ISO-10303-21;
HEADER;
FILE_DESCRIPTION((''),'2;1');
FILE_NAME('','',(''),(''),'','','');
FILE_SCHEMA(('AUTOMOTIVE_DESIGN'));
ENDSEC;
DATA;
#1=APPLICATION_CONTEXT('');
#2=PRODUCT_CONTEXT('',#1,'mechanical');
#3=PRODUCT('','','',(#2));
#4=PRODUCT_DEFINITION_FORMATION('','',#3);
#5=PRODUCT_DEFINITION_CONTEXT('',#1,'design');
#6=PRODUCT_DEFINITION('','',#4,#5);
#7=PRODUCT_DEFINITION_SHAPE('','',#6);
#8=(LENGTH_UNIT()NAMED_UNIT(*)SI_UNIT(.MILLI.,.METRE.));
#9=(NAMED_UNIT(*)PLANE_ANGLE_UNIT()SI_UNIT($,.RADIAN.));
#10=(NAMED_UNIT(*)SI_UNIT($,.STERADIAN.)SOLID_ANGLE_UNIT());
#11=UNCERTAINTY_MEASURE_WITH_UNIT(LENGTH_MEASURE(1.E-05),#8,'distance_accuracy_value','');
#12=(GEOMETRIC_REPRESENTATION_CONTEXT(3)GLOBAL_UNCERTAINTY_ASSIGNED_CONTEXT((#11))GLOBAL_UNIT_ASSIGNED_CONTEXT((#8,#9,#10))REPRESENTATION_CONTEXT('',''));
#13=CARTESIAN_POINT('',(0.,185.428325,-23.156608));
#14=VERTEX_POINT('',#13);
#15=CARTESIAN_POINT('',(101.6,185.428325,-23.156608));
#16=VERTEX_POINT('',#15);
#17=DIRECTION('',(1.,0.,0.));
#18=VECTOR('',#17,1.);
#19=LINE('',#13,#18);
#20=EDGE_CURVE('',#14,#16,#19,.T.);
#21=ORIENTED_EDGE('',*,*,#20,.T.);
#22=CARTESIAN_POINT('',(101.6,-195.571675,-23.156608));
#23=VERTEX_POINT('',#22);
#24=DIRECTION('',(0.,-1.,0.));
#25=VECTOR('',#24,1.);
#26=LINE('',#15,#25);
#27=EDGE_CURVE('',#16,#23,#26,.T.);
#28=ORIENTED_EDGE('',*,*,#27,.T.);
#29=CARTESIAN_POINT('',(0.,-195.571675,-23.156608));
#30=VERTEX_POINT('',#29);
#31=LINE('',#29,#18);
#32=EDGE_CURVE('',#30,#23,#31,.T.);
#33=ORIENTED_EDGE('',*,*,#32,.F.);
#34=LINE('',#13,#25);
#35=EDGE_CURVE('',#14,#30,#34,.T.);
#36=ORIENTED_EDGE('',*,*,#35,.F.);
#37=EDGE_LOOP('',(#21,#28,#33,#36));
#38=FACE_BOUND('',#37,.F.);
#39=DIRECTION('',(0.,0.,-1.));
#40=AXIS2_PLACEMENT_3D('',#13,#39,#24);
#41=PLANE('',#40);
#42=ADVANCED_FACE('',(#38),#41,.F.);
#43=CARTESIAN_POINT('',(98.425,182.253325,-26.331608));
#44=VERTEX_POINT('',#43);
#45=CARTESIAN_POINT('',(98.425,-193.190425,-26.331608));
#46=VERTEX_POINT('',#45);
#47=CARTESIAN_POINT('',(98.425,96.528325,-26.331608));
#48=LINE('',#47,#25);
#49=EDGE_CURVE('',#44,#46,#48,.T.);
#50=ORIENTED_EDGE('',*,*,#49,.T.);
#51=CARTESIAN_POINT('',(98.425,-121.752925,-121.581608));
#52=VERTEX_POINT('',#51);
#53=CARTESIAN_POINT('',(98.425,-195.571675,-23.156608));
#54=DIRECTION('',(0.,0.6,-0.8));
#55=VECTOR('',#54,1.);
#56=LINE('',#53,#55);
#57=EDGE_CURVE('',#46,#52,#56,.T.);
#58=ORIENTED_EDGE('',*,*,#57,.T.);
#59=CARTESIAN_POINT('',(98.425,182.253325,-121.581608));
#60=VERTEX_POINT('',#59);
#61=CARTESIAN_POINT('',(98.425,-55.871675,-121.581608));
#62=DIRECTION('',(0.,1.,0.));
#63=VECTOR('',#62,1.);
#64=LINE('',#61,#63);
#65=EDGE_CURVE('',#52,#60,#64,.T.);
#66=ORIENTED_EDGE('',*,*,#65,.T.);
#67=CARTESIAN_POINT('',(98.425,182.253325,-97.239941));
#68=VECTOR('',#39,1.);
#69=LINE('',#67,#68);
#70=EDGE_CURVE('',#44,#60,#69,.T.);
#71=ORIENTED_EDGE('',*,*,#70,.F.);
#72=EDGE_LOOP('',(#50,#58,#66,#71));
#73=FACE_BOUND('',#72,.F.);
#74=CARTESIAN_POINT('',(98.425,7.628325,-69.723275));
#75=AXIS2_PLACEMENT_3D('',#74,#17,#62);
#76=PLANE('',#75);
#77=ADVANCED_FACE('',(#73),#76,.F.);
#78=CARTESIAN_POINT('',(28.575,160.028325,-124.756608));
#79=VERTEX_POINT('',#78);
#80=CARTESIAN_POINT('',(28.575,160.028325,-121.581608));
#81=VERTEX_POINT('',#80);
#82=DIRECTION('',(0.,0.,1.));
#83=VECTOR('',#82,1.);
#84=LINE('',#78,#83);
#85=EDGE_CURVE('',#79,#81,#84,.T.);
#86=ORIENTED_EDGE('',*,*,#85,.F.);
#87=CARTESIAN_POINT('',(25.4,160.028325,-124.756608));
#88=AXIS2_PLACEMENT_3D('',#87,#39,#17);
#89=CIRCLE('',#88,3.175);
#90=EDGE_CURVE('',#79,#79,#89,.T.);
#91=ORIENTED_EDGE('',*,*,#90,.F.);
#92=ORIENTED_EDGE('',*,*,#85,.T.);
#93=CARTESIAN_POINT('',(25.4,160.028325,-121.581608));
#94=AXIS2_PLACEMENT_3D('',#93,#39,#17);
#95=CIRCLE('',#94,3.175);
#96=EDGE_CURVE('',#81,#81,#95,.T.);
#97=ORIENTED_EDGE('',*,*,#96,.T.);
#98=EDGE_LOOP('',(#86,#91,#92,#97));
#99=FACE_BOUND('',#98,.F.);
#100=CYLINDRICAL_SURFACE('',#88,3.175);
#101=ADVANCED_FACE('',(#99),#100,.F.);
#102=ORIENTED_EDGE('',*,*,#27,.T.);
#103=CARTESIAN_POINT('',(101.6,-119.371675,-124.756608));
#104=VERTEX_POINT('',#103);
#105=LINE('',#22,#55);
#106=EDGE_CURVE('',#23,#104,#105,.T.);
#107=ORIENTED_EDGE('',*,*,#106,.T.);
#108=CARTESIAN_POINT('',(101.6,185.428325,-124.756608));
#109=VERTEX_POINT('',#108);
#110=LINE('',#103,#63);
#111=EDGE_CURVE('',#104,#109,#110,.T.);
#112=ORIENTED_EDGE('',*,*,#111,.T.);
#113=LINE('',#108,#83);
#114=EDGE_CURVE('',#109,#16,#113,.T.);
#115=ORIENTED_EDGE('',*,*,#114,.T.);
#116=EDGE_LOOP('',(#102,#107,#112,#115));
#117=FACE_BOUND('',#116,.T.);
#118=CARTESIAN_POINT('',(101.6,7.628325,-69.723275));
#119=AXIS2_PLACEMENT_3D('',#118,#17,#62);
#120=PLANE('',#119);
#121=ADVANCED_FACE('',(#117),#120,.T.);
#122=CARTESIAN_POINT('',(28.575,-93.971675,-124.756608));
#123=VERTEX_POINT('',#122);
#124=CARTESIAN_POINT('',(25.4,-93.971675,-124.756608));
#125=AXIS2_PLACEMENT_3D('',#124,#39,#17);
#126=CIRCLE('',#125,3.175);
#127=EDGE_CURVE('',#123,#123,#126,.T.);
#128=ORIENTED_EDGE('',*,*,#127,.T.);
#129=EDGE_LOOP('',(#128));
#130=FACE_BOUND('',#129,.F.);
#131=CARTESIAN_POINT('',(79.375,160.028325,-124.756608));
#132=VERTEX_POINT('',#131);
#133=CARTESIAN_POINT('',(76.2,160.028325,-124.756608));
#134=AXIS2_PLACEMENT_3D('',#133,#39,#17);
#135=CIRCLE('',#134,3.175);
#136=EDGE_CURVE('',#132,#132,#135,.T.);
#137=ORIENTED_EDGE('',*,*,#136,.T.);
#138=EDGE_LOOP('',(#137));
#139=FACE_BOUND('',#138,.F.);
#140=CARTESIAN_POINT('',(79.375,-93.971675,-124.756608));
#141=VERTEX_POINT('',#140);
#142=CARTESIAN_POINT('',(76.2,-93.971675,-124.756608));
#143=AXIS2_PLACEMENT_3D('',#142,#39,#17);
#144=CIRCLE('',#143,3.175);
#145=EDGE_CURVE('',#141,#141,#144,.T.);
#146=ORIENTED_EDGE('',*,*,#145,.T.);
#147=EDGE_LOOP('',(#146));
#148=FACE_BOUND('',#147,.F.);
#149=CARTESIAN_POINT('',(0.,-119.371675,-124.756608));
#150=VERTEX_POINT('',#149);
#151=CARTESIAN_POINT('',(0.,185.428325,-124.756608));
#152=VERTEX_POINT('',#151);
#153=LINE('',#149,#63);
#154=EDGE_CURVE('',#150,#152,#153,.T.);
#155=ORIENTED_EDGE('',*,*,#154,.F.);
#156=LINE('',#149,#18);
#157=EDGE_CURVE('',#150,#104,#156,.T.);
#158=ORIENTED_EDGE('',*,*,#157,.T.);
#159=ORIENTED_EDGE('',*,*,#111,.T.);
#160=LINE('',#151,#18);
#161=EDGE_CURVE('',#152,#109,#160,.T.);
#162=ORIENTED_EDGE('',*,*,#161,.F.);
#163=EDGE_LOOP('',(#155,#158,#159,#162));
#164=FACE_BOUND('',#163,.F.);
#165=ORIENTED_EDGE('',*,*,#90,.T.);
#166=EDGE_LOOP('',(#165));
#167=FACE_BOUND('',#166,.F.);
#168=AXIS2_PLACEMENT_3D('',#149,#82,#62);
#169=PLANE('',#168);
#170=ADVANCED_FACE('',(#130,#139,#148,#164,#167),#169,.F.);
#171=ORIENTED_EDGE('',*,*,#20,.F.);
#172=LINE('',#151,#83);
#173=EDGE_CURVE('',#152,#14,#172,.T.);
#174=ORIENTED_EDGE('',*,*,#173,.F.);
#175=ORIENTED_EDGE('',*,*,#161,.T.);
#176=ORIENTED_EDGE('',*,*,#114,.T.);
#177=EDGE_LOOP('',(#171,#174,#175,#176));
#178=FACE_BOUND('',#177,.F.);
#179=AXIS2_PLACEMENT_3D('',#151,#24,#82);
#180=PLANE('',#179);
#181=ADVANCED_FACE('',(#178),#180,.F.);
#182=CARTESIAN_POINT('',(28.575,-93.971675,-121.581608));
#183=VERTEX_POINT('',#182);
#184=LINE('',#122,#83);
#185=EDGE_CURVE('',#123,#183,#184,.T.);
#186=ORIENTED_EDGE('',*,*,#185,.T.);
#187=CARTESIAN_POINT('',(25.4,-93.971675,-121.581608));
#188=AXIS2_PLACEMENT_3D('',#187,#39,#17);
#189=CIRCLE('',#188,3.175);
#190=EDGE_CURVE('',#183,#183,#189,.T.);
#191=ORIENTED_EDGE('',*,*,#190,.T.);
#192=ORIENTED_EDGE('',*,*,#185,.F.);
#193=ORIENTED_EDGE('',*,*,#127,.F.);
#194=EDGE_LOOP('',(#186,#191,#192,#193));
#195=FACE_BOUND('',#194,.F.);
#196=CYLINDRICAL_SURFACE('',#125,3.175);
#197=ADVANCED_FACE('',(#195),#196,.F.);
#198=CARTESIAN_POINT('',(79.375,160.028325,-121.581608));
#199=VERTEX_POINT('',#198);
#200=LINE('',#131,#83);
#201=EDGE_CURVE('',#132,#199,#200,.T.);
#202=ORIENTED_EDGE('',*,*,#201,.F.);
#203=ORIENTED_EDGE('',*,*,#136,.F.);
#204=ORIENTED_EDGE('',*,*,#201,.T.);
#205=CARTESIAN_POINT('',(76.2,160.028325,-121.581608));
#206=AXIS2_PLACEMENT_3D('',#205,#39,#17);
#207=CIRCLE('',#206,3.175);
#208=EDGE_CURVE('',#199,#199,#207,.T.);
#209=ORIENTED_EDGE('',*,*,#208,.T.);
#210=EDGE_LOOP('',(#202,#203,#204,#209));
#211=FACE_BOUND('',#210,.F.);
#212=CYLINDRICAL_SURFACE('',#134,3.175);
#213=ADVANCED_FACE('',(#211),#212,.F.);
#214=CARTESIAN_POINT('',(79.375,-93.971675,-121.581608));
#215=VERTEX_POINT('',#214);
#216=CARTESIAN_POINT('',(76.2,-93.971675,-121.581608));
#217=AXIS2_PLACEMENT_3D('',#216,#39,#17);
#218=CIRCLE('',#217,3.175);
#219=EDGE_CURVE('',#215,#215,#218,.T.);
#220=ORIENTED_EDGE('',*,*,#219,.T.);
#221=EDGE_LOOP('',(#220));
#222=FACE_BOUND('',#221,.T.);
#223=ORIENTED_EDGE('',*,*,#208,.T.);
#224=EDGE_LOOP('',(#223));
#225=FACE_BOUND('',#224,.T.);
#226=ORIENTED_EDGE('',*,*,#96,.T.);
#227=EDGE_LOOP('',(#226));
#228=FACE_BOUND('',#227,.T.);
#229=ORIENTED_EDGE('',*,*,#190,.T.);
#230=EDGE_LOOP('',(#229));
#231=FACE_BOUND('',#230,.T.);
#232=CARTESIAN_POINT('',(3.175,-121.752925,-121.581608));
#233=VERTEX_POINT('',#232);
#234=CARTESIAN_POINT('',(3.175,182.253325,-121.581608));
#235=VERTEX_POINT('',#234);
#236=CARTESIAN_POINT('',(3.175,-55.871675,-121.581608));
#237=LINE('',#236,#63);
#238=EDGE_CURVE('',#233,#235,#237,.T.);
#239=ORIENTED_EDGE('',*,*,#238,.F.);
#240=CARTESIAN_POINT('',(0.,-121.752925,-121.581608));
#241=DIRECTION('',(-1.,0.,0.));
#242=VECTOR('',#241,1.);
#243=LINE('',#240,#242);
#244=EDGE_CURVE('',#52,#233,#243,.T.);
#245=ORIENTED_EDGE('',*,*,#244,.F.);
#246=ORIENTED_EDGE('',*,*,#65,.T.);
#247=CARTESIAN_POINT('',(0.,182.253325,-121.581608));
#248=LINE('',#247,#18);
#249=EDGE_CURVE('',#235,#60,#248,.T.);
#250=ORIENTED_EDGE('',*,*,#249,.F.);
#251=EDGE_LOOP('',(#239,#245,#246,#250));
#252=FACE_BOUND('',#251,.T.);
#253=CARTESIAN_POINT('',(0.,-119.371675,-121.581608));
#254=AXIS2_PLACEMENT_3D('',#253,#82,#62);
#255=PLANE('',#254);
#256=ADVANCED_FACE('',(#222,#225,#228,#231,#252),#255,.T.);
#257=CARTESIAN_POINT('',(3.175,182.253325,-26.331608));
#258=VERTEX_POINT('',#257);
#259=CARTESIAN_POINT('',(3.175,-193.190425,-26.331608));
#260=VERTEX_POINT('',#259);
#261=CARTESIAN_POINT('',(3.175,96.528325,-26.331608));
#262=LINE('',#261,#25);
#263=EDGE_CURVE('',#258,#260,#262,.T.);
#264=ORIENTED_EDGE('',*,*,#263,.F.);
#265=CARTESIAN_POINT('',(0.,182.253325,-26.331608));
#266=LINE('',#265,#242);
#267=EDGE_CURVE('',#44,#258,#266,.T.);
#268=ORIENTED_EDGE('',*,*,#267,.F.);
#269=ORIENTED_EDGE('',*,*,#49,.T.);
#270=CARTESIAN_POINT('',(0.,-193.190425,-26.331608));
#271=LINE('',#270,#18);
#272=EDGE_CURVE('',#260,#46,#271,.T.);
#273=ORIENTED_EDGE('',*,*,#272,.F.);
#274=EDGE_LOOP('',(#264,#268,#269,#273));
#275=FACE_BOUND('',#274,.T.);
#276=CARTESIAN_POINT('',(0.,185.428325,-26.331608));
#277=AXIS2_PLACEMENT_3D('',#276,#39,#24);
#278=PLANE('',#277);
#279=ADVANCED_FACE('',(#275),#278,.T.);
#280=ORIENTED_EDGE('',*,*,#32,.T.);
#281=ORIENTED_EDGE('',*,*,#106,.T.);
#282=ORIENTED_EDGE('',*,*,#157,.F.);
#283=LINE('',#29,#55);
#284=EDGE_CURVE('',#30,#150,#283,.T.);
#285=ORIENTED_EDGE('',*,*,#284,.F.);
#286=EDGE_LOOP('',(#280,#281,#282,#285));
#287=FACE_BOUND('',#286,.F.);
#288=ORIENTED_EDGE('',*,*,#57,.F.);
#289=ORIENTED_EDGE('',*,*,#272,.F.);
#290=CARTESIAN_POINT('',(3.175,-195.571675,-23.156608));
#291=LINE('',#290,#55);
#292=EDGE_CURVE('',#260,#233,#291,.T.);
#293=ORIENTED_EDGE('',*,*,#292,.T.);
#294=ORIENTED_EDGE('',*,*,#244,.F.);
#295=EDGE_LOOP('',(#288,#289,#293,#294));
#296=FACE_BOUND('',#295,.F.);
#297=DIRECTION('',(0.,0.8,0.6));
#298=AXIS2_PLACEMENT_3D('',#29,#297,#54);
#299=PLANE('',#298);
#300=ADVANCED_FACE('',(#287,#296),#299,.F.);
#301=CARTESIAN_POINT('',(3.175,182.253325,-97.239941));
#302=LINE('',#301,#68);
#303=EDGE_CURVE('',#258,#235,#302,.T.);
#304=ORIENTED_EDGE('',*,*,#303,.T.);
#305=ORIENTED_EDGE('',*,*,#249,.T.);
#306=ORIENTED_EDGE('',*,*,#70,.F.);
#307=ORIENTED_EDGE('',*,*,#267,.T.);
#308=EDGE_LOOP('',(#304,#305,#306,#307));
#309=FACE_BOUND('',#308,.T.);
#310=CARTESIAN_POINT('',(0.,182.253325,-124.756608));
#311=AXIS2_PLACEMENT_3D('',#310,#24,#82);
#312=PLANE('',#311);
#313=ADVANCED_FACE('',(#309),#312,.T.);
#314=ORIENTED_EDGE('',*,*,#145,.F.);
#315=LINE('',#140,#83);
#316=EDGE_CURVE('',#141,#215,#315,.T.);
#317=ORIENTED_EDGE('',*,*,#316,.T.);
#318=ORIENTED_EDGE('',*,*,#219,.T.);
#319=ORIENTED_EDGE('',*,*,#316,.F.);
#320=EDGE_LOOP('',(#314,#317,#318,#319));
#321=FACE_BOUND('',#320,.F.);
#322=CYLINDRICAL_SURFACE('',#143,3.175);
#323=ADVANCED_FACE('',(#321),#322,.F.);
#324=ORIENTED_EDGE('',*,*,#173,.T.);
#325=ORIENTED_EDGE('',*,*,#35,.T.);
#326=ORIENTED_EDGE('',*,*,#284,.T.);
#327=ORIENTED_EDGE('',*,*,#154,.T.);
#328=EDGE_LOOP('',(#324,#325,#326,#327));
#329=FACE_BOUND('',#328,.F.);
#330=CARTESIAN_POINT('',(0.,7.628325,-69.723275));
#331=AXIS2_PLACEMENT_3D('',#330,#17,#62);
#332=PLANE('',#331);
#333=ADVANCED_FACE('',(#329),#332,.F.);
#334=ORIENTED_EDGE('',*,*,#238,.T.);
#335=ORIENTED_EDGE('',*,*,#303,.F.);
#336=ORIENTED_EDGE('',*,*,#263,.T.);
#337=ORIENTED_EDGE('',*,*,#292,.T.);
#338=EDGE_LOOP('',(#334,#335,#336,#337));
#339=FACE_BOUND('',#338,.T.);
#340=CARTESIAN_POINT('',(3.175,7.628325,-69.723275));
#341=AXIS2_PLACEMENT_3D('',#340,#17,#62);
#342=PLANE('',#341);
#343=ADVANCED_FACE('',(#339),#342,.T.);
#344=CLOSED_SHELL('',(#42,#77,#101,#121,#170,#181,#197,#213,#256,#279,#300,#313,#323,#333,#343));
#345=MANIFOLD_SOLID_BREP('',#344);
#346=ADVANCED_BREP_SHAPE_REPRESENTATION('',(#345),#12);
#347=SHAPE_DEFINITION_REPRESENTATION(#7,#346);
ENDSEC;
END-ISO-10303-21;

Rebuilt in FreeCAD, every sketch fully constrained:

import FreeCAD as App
import Part
import Sketcher
from FreeCAD import Vector
Q = App.Units.Quantity


def faces_at(feature, points):
    """Names of the faces that lie closest to the given points."""
    faces = feature.Shape.Faces
    near = lambda p: min(range(len(faces)), key=lambda i: faces[i].distToShape(Part.Vertex(*p))[0])
    return sorted({f"Face{near(p) + 1}" for p in points})


def add_polygon(sketch, points):
    """Adds a closed chain of lines whose ends are joined by coincident constraints."""
    first, n = sketch.GeometryCount, len(points)
    for a, b in zip(points, points[1:] + points[:1]):
        sketch.addGeometry(Part.LineSegment(App.Vector(*a, 0), App.Vector(*b, 0)), False)
    for i in range(n):
        sketch.addConstraint(Sketcher.Constraint("Coincident", first + i, 2, first + (i + 1) % n, 1))

doc = App.newDocument("Part")
body = doc.addObject("PartDesign::Body", "Body")

# Sketch on YZ plane
sketch1 = body.newObject("Sketcher::SketchObject", "Sketch")
sketch1.AttachmentSupport = (doc.getObject("YZ_Plane"), [""])
sketch1.MapMode = "FlatFace"
add_polygon(sketch1, [(185, -23), (-196, -23), (-119, -125), (185, -125)])  # lines 0-3
sketch1.addConstraint([
    Sketcher.Constraint("Horizontal", 0),
    Sketcher.Constraint("Horizontal", 2),
    Sketcher.Constraint("Vertical", 3),
    Sketcher.Constraint("DistanceX", 0, 2, 0, 1, Q("15 in")),
    Sketcher.Constraint("DistanceX", 2, 1, 2, 2, Q("12 in")),
    Sketcher.Constraint("DistanceY", 3, 1, 3, 2, Q("4 in")),
    Sketcher.Constraint("DistanceY", 1, 2, -1, 1, Q("124.756608 mm")),
    Sketcher.Constraint("DistanceX", 0, 2, -1, 1, Q("195.571675 mm")),
])
pad1 = body.newObject("PartDesign::Pad", "Pad")
pad1.Profile = sketch1
pad1.Length = Q("4 in")
doc.recompute()

thickness = body.newObject("PartDesign::Thickness", "Thickness")
thickness.Base = (pad1, faces_at(pad1, [(50.8, -157.472, -73.957)]))
thickness.Value = Q("0.125 in")
thickness.Reversed = True
thickness.Join = "Arc"

# Sketch on XY plane
sketch2 = body.newObject("Sketcher::SketchObject", "Sketch001")
sketch2.AttachmentSupport = (doc.getObject("XY_Plane"), [""])
sketch2.MapMode = "FlatFace"
sketch2.AttachmentOffset = App.Placement(Vector(0, 0, -124.756608), App.Rotation())
sketch2.addGeometry([
    Part.Circle(Vector(25.4, -94, 0), Vector(0, 0, 1), 3.2),
    Part.Circle(Vector(76.2, -94, 0), Vector(0, 0, 1), 3.2),
    Part.Circle(Vector(25.4, 160, 0), Vector(0, 0, 1), 3.2),
    Part.Circle(Vector(76.2, 160, 0), Vector(0, 0, 1), 3.2),
], False)
sketch2.addConstraint([
    Sketcher.Constraint("Equal", 0, 1),
    Sketcher.Constraint("Equal", 1, 2),
    Sketcher.Constraint("Equal", 2, 3),
    Sketcher.Constraint("Horizontal", 0, 3, 1, 3),
    Sketcher.Constraint("Horizontal", 2, 3, 3, 3),
    Sketcher.Constraint("Vertical", 0, 3, 2, 3),
    Sketcher.Constraint("Vertical", 1, 3, 3, 3),
    Sketcher.Constraint("Diameter", 0, Q("0.25 in")),
    Sketcher.Constraint("DistanceX", -1, 1, 0, 3, Q("1 in")),
    Sketcher.Constraint("DistanceX", -1, 1, 1, 3, Q("3 in")),
    Sketcher.Constraint("DistanceY", 0, 3, 2, 3, Q("10 in")),
    Sketcher.Constraint("DistanceY", 0, 3, -1, 1, Q("93.971675 mm")),
])
pocket1 = body.newObject("PartDesign::Pocket", "Pocket")
pocket1.Profile = sketch2
pocket1.Length = Q("1 in")
pocket1.Reversed = True

doc.recompute()
